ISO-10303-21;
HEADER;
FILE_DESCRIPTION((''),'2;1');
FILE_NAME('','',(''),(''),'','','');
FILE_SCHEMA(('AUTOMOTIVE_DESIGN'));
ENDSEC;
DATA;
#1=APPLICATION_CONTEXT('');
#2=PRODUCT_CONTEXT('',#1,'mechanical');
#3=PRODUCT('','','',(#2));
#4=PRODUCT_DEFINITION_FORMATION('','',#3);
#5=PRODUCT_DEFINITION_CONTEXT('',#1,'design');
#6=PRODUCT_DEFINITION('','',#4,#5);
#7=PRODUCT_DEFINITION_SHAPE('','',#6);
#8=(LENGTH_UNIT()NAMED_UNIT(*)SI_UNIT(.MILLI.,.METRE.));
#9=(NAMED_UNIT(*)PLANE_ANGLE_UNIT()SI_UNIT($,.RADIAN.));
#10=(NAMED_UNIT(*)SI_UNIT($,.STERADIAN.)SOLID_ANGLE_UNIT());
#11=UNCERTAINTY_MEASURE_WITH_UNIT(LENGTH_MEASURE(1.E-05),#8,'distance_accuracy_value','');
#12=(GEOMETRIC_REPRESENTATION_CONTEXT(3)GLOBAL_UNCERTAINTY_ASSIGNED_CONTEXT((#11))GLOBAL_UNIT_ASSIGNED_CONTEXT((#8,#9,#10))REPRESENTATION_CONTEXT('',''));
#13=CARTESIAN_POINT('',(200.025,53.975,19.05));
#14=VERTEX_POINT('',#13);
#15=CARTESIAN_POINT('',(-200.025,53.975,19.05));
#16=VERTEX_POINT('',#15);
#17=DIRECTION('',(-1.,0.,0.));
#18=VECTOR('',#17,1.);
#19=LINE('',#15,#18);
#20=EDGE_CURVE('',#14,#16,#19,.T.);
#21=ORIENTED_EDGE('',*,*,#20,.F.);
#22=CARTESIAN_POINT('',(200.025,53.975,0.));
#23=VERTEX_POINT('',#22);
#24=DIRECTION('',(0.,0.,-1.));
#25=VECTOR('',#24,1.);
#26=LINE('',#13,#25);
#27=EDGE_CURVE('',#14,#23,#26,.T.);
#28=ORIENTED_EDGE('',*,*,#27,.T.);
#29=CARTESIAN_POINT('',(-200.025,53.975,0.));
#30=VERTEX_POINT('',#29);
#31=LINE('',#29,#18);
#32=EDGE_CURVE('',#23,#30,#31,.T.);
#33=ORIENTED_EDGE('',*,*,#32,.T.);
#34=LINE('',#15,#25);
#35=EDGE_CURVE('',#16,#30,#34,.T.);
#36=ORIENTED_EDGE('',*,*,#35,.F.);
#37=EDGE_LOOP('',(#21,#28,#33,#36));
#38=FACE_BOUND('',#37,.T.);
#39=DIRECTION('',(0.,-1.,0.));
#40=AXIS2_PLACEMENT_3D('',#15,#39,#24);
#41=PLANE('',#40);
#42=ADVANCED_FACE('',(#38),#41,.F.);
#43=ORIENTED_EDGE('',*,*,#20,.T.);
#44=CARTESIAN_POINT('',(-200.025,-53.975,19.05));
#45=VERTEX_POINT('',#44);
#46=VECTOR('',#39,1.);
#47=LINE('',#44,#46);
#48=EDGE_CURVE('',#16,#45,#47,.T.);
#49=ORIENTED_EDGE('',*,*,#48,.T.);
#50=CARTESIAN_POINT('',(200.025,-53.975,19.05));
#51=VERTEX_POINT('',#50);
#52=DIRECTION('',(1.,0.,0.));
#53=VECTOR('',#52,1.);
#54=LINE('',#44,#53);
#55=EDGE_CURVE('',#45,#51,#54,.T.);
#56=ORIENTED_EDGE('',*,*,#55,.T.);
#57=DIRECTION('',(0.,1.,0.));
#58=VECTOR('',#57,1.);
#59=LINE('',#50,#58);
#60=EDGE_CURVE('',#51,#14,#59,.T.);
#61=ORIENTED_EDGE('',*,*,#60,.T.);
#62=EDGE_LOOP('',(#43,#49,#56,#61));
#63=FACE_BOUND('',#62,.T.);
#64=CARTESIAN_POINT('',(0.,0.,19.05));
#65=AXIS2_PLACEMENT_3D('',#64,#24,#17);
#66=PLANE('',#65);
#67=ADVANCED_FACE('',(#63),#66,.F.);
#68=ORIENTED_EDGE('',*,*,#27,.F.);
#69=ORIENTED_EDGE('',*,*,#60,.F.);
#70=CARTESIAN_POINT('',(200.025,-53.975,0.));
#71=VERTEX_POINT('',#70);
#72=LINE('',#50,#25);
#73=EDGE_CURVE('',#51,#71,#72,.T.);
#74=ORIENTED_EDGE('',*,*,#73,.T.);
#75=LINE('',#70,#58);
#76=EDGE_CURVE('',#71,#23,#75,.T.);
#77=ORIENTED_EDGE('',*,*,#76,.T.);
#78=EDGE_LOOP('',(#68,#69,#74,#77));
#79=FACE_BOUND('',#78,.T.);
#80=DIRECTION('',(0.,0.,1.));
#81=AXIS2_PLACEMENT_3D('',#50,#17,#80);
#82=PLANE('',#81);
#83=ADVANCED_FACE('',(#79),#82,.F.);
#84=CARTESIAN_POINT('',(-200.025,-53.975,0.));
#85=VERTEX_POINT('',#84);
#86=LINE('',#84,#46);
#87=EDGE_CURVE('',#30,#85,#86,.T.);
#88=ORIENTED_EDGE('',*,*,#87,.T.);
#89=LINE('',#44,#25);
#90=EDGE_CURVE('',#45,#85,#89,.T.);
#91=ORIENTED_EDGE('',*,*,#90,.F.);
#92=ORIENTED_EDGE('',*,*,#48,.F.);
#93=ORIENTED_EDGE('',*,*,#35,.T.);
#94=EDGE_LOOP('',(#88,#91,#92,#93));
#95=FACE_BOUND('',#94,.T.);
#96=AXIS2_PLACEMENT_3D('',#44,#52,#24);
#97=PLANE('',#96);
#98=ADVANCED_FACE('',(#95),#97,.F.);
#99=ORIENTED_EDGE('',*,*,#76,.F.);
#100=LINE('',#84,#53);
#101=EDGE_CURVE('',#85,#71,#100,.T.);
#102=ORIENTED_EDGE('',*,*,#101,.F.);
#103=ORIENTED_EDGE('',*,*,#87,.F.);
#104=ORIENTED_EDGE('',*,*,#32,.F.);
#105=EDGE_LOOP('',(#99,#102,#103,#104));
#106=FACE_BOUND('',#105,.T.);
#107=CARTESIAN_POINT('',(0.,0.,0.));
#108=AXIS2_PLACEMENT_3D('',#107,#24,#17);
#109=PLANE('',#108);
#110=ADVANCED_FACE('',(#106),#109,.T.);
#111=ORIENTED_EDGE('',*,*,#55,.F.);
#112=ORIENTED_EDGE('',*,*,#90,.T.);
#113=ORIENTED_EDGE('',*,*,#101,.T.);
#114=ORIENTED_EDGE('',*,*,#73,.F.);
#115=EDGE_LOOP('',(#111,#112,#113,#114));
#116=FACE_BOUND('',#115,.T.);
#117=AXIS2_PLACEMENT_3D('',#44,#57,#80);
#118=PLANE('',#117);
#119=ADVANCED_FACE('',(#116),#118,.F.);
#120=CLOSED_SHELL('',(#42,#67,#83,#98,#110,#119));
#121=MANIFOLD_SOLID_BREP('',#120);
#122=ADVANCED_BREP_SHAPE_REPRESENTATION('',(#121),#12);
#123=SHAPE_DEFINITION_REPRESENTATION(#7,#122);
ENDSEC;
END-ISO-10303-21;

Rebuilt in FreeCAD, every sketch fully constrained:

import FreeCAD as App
import Part
import Sketcher

V = App.Vector
Q = App.Units.Quantity

doc = App.newDocument("Part")
params = doc.addObject("Spreadsheet::Sheet", "Params")
for row, (alias, value) in enumerate([
    ("sketch1_width", "15.75 in"),
    ("sketch1_height", "4.25 in"),
    ("pad1_length", "0.75 in"),
], start=1):
    params.set(f"A{row}", alias)
    params.set(f"B{row}", "=" + value)
    params.setAlias(f"B{row}", alias)

body = doc.addObject("PartDesign::Body", "Body")

# Sketch on XY plane
sketch1 = doc.addObject("Sketcher::SketchObject", "Sketch")
body.addObject(sketch1)
sketch1.AttachmentSupport = (doc.XY_Plane, [""])
sketch1.MapMode = "FlatFace"
sketch1.addGeometry([
    Part.LineSegment(V(-200, 54, 0), V(-200, -54, 0)),
    Part.LineSegment(V(-200, -54, 0), V(200, -54, 0)),
    Part.LineSegment(V(200, -54, 0), V(200, 54, 0)),
    Part.LineSegment(V(200, 54, 0), V(-200, 54, 0)),
], False)
sketch1.addConstraint([
    Sketcher.Constraint("Coincident", 0, 2, 1, 1),
    Sketcher.Constraint("Coincident", 1, 2, 2, 1),
    Sketcher.Constraint("Coincident", 2, 2, 3, 1),
    Sketcher.Constraint("Coincident", 3, 2, 0, 1),
    Sketcher.Constraint("Vertical", 0),
    Sketcher.Constraint("Horizontal", 1),
    Sketcher.Constraint("Vertical", 2),
    Sketcher.Constraint("Horizontal", 3),
    Sketcher.Constraint("Symmetric", 0, 2, 2, 2, -1, 1),
    Sketcher.Constraint("DistanceX", 1, 1, 1, 2, Q("15.75 in")),
    Sketcher.Constraint("DistanceY", 0, 2, 0, 1, Q("4.25 in")),
])
sketch1.setExpression("Constraints[9]", "Params.sketch1_width")
sketch1.setExpression("Constraints[10]", "Params.sketch1_height")
pad1 = doc.addObject("PartDesign::Pad", "Pad")
body.addObject(pad1)
pad1.Profile = sketch1
pad1.setExpression("Length", "Params.pad1_length")

doc.recompute()
